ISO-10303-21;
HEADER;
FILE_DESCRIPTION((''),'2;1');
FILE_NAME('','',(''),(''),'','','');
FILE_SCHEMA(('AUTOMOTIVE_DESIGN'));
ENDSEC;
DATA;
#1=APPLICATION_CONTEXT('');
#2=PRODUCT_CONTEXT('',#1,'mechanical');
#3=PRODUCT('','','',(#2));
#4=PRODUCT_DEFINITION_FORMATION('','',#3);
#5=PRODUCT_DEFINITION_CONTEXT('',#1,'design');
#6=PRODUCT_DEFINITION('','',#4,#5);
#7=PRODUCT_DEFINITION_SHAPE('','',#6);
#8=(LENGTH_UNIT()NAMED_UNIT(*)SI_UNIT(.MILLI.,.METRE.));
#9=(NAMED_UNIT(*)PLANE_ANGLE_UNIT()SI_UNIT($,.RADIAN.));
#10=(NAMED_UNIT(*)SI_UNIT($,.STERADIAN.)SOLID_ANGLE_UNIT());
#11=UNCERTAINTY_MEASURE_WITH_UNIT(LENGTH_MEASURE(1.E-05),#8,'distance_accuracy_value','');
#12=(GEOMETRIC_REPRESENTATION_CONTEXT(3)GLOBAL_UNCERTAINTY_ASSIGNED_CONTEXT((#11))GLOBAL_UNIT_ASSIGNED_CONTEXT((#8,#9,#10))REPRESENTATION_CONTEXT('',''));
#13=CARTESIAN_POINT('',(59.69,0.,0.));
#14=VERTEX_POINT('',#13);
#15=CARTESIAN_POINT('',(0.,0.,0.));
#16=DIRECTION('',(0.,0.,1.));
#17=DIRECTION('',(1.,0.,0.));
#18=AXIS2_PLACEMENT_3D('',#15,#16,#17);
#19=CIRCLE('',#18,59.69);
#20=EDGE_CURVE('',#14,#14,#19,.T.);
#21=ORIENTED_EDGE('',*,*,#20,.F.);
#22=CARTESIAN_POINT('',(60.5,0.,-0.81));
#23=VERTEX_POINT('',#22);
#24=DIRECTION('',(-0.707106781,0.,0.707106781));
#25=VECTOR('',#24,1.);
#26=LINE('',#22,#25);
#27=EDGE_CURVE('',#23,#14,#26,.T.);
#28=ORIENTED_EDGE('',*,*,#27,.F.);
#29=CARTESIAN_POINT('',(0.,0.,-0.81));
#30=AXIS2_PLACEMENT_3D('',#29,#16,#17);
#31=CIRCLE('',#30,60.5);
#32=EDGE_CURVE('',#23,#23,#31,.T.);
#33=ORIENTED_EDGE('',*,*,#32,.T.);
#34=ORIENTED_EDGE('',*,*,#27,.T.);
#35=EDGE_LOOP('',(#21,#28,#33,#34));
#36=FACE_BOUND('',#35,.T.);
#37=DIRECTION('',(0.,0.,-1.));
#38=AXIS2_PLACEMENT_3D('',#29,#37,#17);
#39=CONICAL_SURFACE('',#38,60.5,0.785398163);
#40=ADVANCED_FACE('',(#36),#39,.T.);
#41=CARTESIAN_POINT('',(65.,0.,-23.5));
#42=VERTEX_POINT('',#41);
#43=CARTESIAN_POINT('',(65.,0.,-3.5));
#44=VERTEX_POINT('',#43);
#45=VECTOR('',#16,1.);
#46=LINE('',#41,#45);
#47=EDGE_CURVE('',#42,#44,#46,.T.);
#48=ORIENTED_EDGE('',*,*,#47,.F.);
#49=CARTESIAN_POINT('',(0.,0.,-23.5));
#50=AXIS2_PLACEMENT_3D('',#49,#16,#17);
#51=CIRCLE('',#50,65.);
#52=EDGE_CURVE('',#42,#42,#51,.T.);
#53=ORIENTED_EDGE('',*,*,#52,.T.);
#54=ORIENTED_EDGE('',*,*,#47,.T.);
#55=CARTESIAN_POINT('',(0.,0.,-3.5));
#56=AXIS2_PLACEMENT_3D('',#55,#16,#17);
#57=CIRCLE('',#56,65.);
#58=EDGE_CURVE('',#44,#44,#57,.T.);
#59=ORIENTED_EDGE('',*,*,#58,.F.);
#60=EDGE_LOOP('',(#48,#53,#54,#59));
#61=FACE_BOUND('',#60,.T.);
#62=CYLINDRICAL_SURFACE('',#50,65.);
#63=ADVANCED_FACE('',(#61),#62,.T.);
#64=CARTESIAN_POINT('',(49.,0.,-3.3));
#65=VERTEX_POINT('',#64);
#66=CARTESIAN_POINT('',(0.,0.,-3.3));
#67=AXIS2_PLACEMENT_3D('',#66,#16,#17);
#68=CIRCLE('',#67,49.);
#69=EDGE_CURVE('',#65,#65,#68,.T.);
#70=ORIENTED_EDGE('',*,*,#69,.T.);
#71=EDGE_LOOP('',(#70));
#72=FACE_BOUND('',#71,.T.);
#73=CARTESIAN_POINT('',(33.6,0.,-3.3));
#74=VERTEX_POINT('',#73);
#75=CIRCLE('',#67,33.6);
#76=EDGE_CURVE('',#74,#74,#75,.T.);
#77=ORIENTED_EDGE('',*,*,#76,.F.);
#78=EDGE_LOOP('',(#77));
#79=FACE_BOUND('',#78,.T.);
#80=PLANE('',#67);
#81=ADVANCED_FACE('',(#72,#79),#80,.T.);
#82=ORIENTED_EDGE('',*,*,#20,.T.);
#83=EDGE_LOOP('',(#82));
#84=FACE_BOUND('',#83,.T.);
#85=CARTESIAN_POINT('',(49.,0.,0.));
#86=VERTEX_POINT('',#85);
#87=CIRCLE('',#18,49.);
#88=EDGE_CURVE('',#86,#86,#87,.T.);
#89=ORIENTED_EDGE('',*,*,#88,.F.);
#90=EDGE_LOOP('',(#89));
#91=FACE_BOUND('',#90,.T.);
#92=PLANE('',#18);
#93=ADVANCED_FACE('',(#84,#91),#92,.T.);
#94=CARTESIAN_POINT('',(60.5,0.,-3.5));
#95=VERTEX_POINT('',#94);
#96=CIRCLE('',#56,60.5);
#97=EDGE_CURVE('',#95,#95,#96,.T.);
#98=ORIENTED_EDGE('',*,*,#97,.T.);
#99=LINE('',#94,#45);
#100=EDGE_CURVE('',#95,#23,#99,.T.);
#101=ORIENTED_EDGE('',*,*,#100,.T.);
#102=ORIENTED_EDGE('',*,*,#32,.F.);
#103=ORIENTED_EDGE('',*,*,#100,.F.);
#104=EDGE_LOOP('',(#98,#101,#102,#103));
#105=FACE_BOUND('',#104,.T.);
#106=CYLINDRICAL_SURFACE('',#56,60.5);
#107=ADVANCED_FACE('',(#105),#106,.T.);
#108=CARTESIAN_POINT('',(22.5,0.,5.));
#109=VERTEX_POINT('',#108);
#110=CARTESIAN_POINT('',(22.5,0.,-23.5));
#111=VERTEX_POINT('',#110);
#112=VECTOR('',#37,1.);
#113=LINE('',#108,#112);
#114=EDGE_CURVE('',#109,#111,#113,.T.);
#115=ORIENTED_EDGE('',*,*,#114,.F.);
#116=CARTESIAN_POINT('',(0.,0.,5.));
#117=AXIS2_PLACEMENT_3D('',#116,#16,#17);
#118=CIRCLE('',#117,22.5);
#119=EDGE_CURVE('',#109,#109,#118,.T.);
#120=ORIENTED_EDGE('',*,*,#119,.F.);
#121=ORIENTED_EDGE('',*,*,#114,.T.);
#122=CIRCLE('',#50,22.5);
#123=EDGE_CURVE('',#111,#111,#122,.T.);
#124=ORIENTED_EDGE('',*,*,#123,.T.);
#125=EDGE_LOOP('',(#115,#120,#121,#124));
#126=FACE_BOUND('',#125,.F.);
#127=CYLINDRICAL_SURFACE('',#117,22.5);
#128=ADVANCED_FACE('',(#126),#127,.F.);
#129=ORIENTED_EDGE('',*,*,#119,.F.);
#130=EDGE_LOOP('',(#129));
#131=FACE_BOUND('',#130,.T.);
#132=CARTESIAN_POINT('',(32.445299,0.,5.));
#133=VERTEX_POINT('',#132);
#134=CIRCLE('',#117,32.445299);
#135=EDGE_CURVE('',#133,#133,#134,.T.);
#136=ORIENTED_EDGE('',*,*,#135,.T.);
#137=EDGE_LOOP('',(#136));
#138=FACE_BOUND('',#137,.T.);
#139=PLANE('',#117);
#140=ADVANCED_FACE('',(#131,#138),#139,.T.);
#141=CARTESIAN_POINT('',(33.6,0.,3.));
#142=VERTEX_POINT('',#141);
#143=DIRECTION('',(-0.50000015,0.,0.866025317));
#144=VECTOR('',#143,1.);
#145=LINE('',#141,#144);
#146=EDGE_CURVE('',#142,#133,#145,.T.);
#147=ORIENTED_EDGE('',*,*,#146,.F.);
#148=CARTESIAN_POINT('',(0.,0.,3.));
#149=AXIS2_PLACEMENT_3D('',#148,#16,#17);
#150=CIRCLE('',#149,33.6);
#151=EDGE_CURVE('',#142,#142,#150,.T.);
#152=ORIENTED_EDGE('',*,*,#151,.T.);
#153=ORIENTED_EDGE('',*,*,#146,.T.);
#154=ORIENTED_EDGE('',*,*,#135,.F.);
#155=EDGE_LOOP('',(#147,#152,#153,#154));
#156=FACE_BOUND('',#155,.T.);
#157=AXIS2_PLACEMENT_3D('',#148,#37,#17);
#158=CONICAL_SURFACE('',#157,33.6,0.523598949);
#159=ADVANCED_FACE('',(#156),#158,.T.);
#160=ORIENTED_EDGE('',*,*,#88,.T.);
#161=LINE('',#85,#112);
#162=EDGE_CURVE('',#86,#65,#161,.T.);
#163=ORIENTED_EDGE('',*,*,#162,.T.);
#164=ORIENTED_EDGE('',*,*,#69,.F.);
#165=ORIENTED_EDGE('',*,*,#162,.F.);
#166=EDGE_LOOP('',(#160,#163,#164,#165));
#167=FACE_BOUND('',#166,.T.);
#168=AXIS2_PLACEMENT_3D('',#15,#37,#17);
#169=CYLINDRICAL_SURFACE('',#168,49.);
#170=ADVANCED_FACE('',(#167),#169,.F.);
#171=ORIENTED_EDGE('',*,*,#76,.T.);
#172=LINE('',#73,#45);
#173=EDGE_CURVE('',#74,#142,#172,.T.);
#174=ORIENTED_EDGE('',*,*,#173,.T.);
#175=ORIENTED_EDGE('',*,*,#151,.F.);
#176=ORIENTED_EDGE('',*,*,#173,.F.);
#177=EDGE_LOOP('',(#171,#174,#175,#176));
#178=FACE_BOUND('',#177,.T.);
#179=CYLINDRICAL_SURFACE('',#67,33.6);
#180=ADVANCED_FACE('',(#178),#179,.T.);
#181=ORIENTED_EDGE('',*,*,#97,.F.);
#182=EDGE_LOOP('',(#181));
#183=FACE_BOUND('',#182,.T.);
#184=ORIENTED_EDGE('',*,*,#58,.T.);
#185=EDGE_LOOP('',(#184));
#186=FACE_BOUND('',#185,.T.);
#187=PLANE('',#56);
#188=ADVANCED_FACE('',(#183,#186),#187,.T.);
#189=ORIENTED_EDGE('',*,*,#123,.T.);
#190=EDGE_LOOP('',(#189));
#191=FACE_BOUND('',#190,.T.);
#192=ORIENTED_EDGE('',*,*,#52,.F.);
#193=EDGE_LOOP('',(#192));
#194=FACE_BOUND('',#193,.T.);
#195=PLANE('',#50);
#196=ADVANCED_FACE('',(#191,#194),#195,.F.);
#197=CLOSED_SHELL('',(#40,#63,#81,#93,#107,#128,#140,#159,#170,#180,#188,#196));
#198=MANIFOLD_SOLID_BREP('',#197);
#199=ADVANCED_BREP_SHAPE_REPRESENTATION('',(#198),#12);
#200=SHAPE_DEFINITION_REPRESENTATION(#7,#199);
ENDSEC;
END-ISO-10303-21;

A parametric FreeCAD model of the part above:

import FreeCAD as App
import Part
import Sketcher
Q = App.Units.Quantity


def edges_at(feature, points):
    """Names of the edges that pass closest to the given points."""
    edges = feature.Shape.Edges
    near = lambda p: min(range(len(edges)), key=lambda i: edges[i].distToShape(Part.Vertex(*p))[0])
    return sorted({f"Edge{near(p) + 1}" for p in points})

doc = App.newDocument("Part")
params = doc.addObject("Spreadsheet::Sheet", "Params")
for row, (alias, value) in enumerate([
    ("sketch1_width", "65 mm"),
    ("sketch1_height", "20 mm"),
    ("sketch1_width2", "4.5 mm"),
    ("sketch1_width3", "11.5 mm"),
    ("sketch1_width4", "15.4 mm"),
    ("revolution_angle", "360 deg"),
    ("chamfer_size", "0.81 mm"),
    ("chamfer2_size", "2 mm"),
    ("chamfer2_size2", "1.154701 mm"),
    ("sketch2_diameter", "45 mm"),
    ("pad1_length", "50 mm"),
    ("pad2_length", "16.8 mm"),
], start=1):
    params.set(f"A{row}", alias)
    params.set(f"B{row}", "=" + value)
    params.setAlias(f"B{row}", alias)

body = doc.addObject("PartDesign::Body", "Body")

sketch1 = body.newObject("Sketcher::SketchObject", "Sketch")
sketch1.AttachmentSupport = (doc.getObject("XZ_Plane"), [""])
sketch1.MapMode = "FlatFace"
sketch1.addGeometry(Part.LineSegment(App.Vector(0, -23.5, 0), App.Vector(65, -23.5, 0)), False)
sketch1.addGeometry(Part.LineSegment(App.Vector(65, -23.5, 0), App.Vector(65, -3.5, 0)), False)
sketch1.addGeometry(Part.LineSegment(App.Vector(65, -3.5, 0), App.Vector(60.5, -3.5, 0)), False)
sketch1.addGeometry(Part.LineSegment(App.Vector(60.5, -3.5, 0), App.Vector(60.5, 0, 0)), False)
sketch1.addGeometry(Part.LineSegment(App.Vector(60.5, 0, 0), App.Vector(49, 0, 0)), False)
sketch1.addGeometry(Part.LineSegment(App.Vector(49, 0, 0), App.Vector(49, -3.3, 0)), False)
sketch1.addGeometry(Part.LineSegment(App.Vector(49, -3.3, 0), App.Vector(33.6, -3.3, 0)), False)
sketch1.addGeometry(Part.LineSegment(App.Vector(33.6, -3.3, 0), App.Vector(33.6, 5, 0)), False)
sketch1.addGeometry(Part.LineSegment(App.Vector(33.6, 5, 0), App.Vector(0, 5, 0)), False)
sketch1.addGeometry(Part.LineSegment(App.Vector(0, 5, 0), App.Vector(0, -23.5, 0)), False)
sketch1.addConstraint(Sketcher.Constraint("Coincident", 0, 2, 1, 1))
sketch1.addConstraint(Sketcher.Constraint("Coincident", 1, 2, 2, 1))
sketch1.addConstraint(Sketcher.Constraint("Coincident", 2, 2, 3, 1))
sketch1.addConstraint(Sketcher.Constraint("Coincident", 3, 2, 4, 1))
sketch1.addConstraint(Sketcher.Constraint("Coincident", 4, 2, 5, 1))
sketch1.addConstraint(Sketcher.Constraint("Coincident", 5, 2, 6, 1))
sketch1.addConstraint(Sketcher.Constraint("Coincident", 6, 2, 7, 1))
sketch1.addConstraint(Sketcher.Constraint("Coincident", 7, 2, 8, 1))
sketch1.addConstraint(Sketcher.Constraint("Coincident", 8, 2, 9, 1))
sketch1.addConstraint(Sketcher.Constraint("Coincident", 9, 2, 0, 1))
sketch1.addConstraint(Sketcher.Constraint("Horizontal", 0))
sketch1.addConstraint(Sketcher.Constraint("Vertical", 1))
sketch1.addConstraint(Sketcher.Constraint("Horizontal", 2))
sketch1.addConstraint(Sketcher.Constraint("Vertical", 3))
sketch1.addConstraint(Sketcher.Constraint("Horizontal", 4))
sketch1.addConstraint(Sketcher.Constraint("Vertical", 5))
sketch1.addConstraint(Sketcher.Constraint("Horizontal", 6))
sketch1.addConstraint(Sketcher.Constraint("Vertical", 7))
sketch1.addConstraint(Sketcher.Constraint("Horizontal", 8))
sketch1.addConstraint(Sketcher.Constraint("Vertical", 9))
sketch1.addConstraint(Sketcher.Constraint("PointOnObject", 3, 2, -1))
sketch1.addConstraint(Sketcher.Constraint("PointOnObject", 8, 2, -2))
sketch1.addConstraint(Sketcher.Constraint("DistanceX", 0, 1, 0, 2, Q("65 mm")))
sketch1.addConstraint(Sketcher.Constraint("DistanceY", 1, 1, 1, 2, Q("20 mm")))
sketch1.addConstraint(Sketcher.Constraint("DistanceX", 2, 2, 2, 1, Q("4.5 mm")))
sketch1.addConstraint(Sketcher.Constraint("DistanceX", 4, 2, 4, 1, Q("11.5 mm")))
sketch1.addConstraint(Sketcher.Constraint("DistanceX", 6, 2, 6, 1, Q("15.4 mm")))
sketch1.addConstraint(Sketcher.Constraint("DistanceY", 3, 1, 3, 2, Q("3.5 mm")))
sketch1.addConstraint(Sketcher.Constraint("DistanceY", 5, 2, 5, 1, Q("3.3 mm")))
sketch1.addConstraint(Sketcher.Constraint("DistanceY", 7, 1, 7, 2, Q("8.3 mm")))
sketch1.setExpression("Constraints[22]", "Params.sketch1_width")
sketch1.setExpression("Constraints[23]", "Params.sketch1_height")
sketch1.setExpression("Constraints[24]", "Params.sketch1_width2")
sketch1.setExpression("Constraints[25]", "Params.sketch1_width3")
sketch1.setExpression("Constraints[26]", "Params.sketch1_width4")
revolution = body.newObject("PartDesign::Revolution", "Revolution")
revolution.Profile = sketch1
revolution.ReferenceAxis = (sketch1, ["V_Axis"])
revolution.setExpression("Angle", "Params.revolution_angle")
doc.recompute()

chamfer = body.newObject("PartDesign::Chamfer", "Chamfer")
chamfer.Base = (revolution, edges_at(revolution, [(-60.5, 0, 0)]))
chamfer.setExpression("Size", "Params.chamfer_size")
doc.recompute()

chamfer2 = body.newObject("PartDesign::Chamfer", "Chamfer001")
chamfer2.Base = (chamfer, edges_at(chamfer, [(-33.6, 0, 5)]))
chamfer2.ChamferType = "Two distances"
chamfer2.setExpression("Size", "Params.chamfer2_size")
chamfer2.setExpression("Size2", "Params.chamfer2_size2")
body2 = doc.addObject("PartDesign::Body", "Body001")

sketch2 = body2.newObject("Sketcher::SketchObject", "Sketch001")
sketch2.AttachmentSupport = (doc.getObject("XY_Plane001"), [""])
sketch2.MapMode = "FlatFace"
sketch2.AttachmentOffset = App.Placement(App.Vector(0, 0, 5), App.Rotation())
sketch2.addGeometry(Part.Circle(App.Vector(0, 0, 0), App.Vector(0, 0, 1), 22.5), False)
sketch2.addConstraint(Sketcher.Constraint("Coincident", 0, 3, -1, 1))
sketch2.addConstraint(Sketcher.Constraint("Diameter", 0, Q("45 mm")))
sketch2.setExpression("Constraints[1]", "Params.sketch2_diameter")
pad1 = body2.newObject("PartDesign::Pad", "Pad")
pad1.Profile = sketch2
pad1.setExpression("Length", "Params.pad1_length")
pad1.Reversed = True
pad2 = body2.newObject("PartDesign::Pad", "Pad001")
pad2.Profile = sketch2
pad2.setExpression("Length", "Params.pad2_length")
pad2.Reversed = True
doc.recompute()

boolean = body.newObject("PartDesign::Boolean", "Boolean")
boolean.Type = "Cut"
boolean.addObjects([body2])

doc.recompute()
